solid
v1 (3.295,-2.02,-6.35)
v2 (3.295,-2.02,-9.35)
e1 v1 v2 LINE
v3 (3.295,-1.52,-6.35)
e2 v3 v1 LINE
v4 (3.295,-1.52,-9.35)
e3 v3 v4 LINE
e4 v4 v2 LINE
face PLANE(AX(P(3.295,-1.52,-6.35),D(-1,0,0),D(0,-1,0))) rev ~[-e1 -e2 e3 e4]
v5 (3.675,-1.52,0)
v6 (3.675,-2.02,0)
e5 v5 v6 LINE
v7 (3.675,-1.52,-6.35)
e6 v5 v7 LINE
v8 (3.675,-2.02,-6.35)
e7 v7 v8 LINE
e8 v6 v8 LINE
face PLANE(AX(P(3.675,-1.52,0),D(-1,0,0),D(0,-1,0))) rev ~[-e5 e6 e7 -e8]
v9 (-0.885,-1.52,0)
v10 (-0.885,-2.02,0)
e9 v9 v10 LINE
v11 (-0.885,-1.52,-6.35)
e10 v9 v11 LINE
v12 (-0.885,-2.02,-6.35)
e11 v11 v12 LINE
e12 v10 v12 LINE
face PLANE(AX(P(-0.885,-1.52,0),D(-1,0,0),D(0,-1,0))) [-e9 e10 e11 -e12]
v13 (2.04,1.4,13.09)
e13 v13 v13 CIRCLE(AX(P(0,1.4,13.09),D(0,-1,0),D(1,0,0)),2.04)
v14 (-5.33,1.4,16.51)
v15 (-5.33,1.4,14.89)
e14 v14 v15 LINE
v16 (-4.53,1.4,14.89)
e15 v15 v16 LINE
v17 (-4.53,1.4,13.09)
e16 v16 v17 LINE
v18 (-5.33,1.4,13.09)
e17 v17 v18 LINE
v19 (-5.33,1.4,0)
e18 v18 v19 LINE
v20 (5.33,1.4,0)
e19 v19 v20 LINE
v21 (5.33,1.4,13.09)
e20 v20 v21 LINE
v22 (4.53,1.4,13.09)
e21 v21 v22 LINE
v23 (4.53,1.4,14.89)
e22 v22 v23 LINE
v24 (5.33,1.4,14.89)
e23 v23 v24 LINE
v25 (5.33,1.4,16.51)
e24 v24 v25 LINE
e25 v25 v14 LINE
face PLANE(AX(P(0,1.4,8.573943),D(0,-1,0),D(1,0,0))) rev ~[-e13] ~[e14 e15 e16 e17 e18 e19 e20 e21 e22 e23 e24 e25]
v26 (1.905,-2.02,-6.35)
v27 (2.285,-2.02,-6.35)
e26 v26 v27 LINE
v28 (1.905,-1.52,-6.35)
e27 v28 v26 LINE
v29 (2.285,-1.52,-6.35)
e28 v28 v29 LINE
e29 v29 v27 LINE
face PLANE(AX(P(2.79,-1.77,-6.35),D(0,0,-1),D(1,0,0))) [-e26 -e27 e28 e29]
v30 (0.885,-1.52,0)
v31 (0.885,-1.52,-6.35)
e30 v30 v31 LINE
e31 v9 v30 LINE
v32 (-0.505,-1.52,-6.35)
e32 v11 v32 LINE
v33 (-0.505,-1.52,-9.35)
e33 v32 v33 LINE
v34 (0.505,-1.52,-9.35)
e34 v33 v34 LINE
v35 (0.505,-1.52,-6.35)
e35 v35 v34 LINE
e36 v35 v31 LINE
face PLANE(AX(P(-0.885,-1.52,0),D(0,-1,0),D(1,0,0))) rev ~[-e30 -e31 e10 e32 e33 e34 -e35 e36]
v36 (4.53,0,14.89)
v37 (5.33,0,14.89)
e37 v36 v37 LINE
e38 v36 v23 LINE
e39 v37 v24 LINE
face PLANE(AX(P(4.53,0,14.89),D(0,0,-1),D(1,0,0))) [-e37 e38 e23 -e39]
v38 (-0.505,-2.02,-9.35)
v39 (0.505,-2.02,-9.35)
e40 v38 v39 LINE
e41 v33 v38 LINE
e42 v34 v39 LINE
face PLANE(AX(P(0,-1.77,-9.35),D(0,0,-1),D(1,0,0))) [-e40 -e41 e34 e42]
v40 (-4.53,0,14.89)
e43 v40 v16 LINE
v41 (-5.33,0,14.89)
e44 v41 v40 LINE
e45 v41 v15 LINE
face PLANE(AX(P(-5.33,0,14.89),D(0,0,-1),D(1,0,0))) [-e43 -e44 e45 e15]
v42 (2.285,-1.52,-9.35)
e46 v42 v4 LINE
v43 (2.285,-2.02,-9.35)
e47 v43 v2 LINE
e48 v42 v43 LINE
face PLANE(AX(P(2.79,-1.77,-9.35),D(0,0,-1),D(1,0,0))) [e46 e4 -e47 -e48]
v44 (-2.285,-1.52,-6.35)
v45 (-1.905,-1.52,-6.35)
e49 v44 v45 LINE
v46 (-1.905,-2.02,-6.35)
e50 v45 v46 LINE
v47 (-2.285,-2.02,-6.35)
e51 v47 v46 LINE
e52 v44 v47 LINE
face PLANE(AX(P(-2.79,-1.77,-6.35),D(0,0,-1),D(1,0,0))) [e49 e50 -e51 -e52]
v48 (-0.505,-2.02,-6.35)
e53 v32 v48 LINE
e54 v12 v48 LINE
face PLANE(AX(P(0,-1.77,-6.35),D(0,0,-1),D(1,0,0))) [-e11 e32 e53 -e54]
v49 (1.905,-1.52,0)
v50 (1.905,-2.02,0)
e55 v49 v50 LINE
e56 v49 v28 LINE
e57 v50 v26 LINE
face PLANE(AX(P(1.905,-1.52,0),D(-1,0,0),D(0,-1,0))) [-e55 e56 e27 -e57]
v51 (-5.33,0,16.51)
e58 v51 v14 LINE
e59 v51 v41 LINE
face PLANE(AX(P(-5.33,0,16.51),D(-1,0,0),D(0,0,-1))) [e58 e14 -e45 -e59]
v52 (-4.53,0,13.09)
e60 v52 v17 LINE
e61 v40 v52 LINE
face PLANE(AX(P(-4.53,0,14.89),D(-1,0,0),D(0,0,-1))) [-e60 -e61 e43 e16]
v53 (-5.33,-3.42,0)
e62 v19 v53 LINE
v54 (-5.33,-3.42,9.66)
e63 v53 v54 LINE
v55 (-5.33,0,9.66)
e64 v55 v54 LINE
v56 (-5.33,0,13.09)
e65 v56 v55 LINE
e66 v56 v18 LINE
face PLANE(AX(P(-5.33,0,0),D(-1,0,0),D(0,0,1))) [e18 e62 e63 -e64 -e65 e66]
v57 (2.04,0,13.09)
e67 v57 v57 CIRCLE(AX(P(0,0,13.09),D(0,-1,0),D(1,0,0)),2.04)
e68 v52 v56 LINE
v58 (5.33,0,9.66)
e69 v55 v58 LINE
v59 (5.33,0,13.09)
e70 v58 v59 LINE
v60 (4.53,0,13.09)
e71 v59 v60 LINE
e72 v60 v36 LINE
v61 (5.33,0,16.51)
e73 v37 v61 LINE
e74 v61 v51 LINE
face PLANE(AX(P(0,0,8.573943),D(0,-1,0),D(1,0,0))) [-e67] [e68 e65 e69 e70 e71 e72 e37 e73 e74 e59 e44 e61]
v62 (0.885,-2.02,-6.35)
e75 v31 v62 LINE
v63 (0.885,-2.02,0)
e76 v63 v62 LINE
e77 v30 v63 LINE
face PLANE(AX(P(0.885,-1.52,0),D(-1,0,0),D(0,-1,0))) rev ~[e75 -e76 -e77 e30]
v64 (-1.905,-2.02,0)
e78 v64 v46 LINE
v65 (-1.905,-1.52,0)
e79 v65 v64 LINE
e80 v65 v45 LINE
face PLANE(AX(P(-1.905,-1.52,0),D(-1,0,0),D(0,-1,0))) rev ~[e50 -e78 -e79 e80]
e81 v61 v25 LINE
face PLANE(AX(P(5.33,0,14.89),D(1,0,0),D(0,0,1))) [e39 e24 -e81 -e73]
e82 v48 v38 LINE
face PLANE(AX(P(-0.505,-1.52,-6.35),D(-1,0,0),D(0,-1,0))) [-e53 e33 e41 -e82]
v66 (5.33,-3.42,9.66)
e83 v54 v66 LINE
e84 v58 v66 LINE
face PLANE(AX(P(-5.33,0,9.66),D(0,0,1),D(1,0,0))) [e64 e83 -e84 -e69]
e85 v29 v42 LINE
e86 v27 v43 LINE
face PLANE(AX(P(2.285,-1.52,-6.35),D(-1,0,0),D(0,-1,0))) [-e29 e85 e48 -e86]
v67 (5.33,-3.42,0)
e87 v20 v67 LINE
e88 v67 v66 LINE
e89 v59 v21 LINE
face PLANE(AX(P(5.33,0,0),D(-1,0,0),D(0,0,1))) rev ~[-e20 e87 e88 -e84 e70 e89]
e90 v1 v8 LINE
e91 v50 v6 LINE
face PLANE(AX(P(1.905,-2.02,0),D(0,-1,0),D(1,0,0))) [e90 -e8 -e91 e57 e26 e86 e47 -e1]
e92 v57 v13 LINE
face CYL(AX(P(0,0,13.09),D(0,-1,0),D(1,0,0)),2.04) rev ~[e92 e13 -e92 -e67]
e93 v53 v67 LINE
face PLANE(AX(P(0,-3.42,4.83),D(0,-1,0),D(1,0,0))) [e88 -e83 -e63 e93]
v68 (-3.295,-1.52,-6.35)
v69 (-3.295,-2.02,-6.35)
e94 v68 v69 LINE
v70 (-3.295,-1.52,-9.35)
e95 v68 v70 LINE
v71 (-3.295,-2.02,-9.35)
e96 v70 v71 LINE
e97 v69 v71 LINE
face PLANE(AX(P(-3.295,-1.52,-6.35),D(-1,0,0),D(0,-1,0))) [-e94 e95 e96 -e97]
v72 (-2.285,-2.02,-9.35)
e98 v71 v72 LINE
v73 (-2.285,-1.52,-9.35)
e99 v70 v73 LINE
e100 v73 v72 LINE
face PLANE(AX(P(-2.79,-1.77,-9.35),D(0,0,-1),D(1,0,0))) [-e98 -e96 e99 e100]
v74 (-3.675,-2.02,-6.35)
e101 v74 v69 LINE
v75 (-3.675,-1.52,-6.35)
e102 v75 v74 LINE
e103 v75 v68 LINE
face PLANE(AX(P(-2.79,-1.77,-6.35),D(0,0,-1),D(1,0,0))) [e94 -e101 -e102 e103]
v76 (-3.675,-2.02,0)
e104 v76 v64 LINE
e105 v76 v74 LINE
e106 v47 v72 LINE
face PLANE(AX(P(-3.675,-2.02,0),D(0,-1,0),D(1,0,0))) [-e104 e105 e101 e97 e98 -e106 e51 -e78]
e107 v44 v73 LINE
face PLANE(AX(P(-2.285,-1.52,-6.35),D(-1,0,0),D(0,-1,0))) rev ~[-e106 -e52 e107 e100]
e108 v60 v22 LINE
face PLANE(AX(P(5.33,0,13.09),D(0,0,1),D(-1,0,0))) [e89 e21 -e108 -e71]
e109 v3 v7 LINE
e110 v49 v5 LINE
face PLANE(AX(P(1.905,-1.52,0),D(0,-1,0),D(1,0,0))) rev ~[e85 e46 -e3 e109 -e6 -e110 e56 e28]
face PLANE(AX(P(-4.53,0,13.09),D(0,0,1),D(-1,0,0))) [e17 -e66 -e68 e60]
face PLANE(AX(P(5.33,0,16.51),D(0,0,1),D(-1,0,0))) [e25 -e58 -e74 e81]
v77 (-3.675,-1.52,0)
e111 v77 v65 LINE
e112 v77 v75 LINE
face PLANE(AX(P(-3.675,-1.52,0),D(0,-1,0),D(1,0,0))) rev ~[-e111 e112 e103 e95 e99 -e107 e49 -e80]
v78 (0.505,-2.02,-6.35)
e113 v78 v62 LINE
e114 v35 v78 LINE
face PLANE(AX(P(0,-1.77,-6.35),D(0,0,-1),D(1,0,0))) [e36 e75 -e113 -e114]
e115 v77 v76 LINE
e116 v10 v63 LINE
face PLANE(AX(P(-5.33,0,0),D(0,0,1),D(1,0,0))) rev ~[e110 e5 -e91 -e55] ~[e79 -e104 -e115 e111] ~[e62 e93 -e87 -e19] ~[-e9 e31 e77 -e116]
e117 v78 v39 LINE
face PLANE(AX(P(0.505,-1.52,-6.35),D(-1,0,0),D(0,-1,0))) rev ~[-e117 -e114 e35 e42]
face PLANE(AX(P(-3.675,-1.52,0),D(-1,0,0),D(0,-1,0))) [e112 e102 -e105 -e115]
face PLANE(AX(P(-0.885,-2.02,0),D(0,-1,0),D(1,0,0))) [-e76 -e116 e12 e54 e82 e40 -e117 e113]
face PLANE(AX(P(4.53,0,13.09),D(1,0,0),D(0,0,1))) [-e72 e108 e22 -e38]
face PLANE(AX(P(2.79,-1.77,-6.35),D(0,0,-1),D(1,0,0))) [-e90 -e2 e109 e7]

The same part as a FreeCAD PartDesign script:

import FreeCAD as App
import Part
import Sketcher

V = App.Vector
Q = App.Units.Quantity


def add_polygon(sketch, points):
    """Adds a closed chain of lines whose ends are joined by coincident constraints."""
    first, n = sketch.GeometryCount, len(points)
    for a, b in zip(points, points[1:] + points[:1]):
        sketch.addGeometry(Part.LineSegment(App.Vector(*a, 0), App.Vector(*b, 0)), False)
    for i in range(n):
        sketch.addConstraint(Sketcher.Constraint("Coincident", first + i, 2, first + (i + 1) % n, 1))

doc = App.newDocument("Part")
body = doc.addObject("PartDesign::Body", "Body")

# Sketch on XZ plane
sketch1 = body.newObject("Sketcher::SketchObject", "Sketch")
sketch1.AttachmentSupport = (doc.getObject("XZ_Plane"), [""])
sketch1.MapMode = "FlatFace"
add_polygon(sketch1, [(5.33, 16.51), (-5.33, 16.51), (-5.33, 14.89), (-4.53, 14.89), (-4.53, 13.09), (-5.33, 13.09), (-5.33, 0), (5.33, 0), (5.33, 13.09), (4.53, 13.09), (4.53, 14.89), (5.33, 14.89)])  # lines 0-11
sketch1.addGeometry(Part.Circle(V(0, 13.09, 0), V(0, 0, 1), 2.04), False)  # 12
sketch1.addConstraint([
    Sketcher.Constraint("Horizontal", 0),
    Sketcher.Constraint("Vertical", 1),
    Sketcher.Constraint("Horizontal", 2),
    Sketcher.Constraint("Vertical", 3),
    Sketcher.Constraint("Horizontal", 4),
    Sketcher.Constraint("Vertical", 5),
    Sketcher.Constraint("Horizontal", 6),
    Sketcher.Constraint("Vertical", 7),
    Sketcher.Constraint("Horizontal", 8),
    Sketcher.Constraint("Vertical", 9),
    Sketcher.Constraint("Horizontal", 10),
    Sketcher.Constraint("Vertical", 11),
    Sketcher.Constraint("Symmetric", 5, 2, 6, 2, -1, 1),
    Sketcher.Constraint("Symmetric", 3, 2, 8, 2, -2),
    Sketcher.Constraint("Symmetric", 1, 2, 10, 2, -2),
    Sketcher.Constraint("PointOnObject", 12, 3, -2),
    Sketcher.Constraint("Horizontal", 12, 3, 3, 2),
    Sketcher.Constraint("Vertical", 1, 2, 4, 2),
    Sketcher.Constraint("Diameter", 12, Q("4.08 mm")),
    Sketcher.Constraint("DistanceX", 2, 1, 2, 2, Q("0.8 mm")),
    Sketcher.Constraint("DistanceY", 3, 2, 3, 1, Q("1.8 mm")),
    Sketcher.Constraint("DistanceX", 0, 2, 0, 1, Q("10.66 mm")),
    Sketcher.Constraint("DistanceY", 1, 2, 1, 1, Q("1.62 mm")),
    Sketcher.Constraint("DistanceY", 5, 2, 5, 1, Q("13.09 mm")),
])
pad1 = body.newObject("PartDesign::Pad", "Pad")
pad1.Profile = sketch1
pad1.Length = 1.4
pad1.Reversed = True

# Sketch on XZ plane
sketch2 = body.newObject("Sketcher::SketchObject", "Sketch001")
sketch2.AttachmentSupport = (doc.getObject("XZ_Plane"), [""])
sketch2.MapMode = "FlatFace"
add_polygon(sketch2, [(-5.33, 9.66), (-5.33, 0), (5.33, 0), (5.33, 9.66)])  # lines 0-3
sketch2.addConstraint([
    Sketcher.Constraint("Vertical", 0),
    Sketcher.Constraint("Horizontal", 1),
    Sketcher.Constraint("Vertical", 2),
    Sketcher.Constraint("Horizontal", 3),
    Sketcher.Constraint("Symmetric", 0, 2, 1, 2, -1, 1),
    Sketcher.Constraint("DistanceX", 1, 1, 1, 2, Q("10.66 mm")),
    Sketcher.Constraint("DistanceY", 0, 2, 0, 1, Q("9.66 mm")),
])
pad2 = body.newObject("PartDesign::Pad", "Pad001")
pad2.Profile = sketch2
pad2.Length = 3.42

# Sketch on XY plane
sketch3 = body.newObject("Sketcher::SketchObject", "Sketch002")
sketch3.AttachmentSupport = (doc.getObject("XY_Plane"), [""])
sketch3.MapMode = "FlatFace"
add_polygon(sketch3, [(-3.675, -2.02), (-3.675, -1.52), (-1.905, -1.52), (-1.905, -2.02)])  # lines 0-3
add_polygon(sketch3, [(-0.885, -2.02), (-0.885, -1.52), (0.885, -1.52), (0.885, -2.02)])  # lines 4-7
add_polygon(sketch3, [(1.905, -2.02), (1.905, -1.52), (3.675, -1.52), (3.675, -2.02)])  # lines 8-11
sketch3.addConstraint([
    Sketcher.Constraint("Vertical", 0),
    Sketcher.Constraint("Horizontal", 1),
    Sketcher.Constraint("Vertical", 2),
    Sketcher.Constraint("Horizontal", 3),
    Sketcher.Constraint("Vertical", 4),
    Sketcher.Constraint("Horizontal", 5),
    Sketcher.Constraint("Vertical", 6),
    Sketcher.Constraint("Horizontal", 7),
    Sketcher.Constraint("Vertical", 8),
    Sketcher.Constraint("Horizontal", 9),
    Sketcher.Constraint("Vertical", 10),
    Sketcher.Constraint("Horizontal", 11),
    Sketcher.Constraint("Symmetric", 1, 2, 8, 2, -2),
    Sketcher.Constraint("Symmetric", 3, 2, 10, 2, -2),
    Sketcher.Constraint("Horizontal", 1, 2, 4, 2),
    Sketcher.Constraint("Horizontal", 3, 2, 6, 2),
    Sketcher.Constraint("Equal", 3, 5),
    Sketcher.Constraint("DistanceY", 0, 1, 0, 2, Q("0.5 mm")),
    Sketcher.Constraint("DistanceX", 1, 1, 1, 2, Q("1.77 mm")),
    Sketcher.Constraint("DistanceY", 0, 2, -1, 1, Q("1.52 mm")),
    Sketcher.Constraint("DistanceX", 1, 2, 4, 2, Q("1.02 mm")),
    Sketcher.Constraint("DistanceX", 5, 2, 8, 2, Q("1.02 mm")),
])
pad3 = body.newObject("PartDesign::Pad", "Pad002")
pad3.Profile = sketch3
pad3.Length = 6.35
pad3.Reversed = True

# Sketch on XY plane
sketch4 = body.newObject("Sketcher::SketchObject", "Sketch003")
sketch4.AttachmentSupport = (doc.getObject("XY_Plane"), [""])
sketch4.MapMode = "FlatFace"
sketch4.AttachmentOffset = App.Placement(V(0, 0, -6.35), App.Rotation())
add_polygon(sketch4, [(-3.295, -2.02), (-3.295, -1.52), (-2.285, -1.52), (-2.285, -2.02)])  # lines 0-3
add_polygon(sketch4, [(-0.505, -2.02), (-0.505, -1.52), (0.505, -1.52), (0.505, -2.02)])  # lines 4-7
add_polygon(sketch4, [(2.285, -2.02), (2.285, -1.52), (3.295, -1.52), (3.295, -2.02)])  # lines 8-11
sketch4.addConstraint([
    Sketcher.Constraint("Vertical", 0),
    Sketcher.Constraint("Horizontal", 1),
    Sketcher.Constraint("Vertical", 2),
    Sketcher.Constraint("Horizontal", 3),
    Sketcher.Constraint("Vertical", 4),
    Sketcher.Constraint("Horizontal", 5),
    Sketcher.Constraint("Vertical", 6),
    Sketcher.Constraint("Horizontal", 7),
    Sketcher.Constraint("Vertical", 8),
    Sketcher.Constraint("Horizontal", 9),
    Sketcher.Constraint("Vertical", 10),
    Sketcher.Constraint("Horizontal", 11),
    Sketcher.Constraint("Symmetric", 1, 2, 8, 2, -2),
    Sketcher.Constraint("Symmetric", 3, 2, 10, 2, -2),
    Sketcher.Constraint("Horizontal", 1, 2, 4, 2),
    Sketcher.Constraint("Horizontal", 3, 2, 6, 2),
    Sketcher.Constraint("Equal", 3, 5),
    Sketcher.Constraint("DistanceY", 0, 1, 0, 2, Q("0.5 mm")),
    Sketcher.Constraint("DistanceX", 1, 1, 1, 2, Q("1.01 mm")),
    Sketcher.Constraint("DistanceX", 0, 2, 5, 2, Q("3.8 mm")),
    Sketcher.Constraint("DistanceX", 4, 2, 9, 2, Q("3.8 mm")),
    Sketcher.Constraint("DistanceY", 0, 2, -1, 1, Q("1.52 mm")),
])
pad4 = body.newObject("PartDesign::Pad", "Pad003")
pad4.Profile = sketch4
pad4.Length = 3
pad4.Reversed = True

doc.recompute()
